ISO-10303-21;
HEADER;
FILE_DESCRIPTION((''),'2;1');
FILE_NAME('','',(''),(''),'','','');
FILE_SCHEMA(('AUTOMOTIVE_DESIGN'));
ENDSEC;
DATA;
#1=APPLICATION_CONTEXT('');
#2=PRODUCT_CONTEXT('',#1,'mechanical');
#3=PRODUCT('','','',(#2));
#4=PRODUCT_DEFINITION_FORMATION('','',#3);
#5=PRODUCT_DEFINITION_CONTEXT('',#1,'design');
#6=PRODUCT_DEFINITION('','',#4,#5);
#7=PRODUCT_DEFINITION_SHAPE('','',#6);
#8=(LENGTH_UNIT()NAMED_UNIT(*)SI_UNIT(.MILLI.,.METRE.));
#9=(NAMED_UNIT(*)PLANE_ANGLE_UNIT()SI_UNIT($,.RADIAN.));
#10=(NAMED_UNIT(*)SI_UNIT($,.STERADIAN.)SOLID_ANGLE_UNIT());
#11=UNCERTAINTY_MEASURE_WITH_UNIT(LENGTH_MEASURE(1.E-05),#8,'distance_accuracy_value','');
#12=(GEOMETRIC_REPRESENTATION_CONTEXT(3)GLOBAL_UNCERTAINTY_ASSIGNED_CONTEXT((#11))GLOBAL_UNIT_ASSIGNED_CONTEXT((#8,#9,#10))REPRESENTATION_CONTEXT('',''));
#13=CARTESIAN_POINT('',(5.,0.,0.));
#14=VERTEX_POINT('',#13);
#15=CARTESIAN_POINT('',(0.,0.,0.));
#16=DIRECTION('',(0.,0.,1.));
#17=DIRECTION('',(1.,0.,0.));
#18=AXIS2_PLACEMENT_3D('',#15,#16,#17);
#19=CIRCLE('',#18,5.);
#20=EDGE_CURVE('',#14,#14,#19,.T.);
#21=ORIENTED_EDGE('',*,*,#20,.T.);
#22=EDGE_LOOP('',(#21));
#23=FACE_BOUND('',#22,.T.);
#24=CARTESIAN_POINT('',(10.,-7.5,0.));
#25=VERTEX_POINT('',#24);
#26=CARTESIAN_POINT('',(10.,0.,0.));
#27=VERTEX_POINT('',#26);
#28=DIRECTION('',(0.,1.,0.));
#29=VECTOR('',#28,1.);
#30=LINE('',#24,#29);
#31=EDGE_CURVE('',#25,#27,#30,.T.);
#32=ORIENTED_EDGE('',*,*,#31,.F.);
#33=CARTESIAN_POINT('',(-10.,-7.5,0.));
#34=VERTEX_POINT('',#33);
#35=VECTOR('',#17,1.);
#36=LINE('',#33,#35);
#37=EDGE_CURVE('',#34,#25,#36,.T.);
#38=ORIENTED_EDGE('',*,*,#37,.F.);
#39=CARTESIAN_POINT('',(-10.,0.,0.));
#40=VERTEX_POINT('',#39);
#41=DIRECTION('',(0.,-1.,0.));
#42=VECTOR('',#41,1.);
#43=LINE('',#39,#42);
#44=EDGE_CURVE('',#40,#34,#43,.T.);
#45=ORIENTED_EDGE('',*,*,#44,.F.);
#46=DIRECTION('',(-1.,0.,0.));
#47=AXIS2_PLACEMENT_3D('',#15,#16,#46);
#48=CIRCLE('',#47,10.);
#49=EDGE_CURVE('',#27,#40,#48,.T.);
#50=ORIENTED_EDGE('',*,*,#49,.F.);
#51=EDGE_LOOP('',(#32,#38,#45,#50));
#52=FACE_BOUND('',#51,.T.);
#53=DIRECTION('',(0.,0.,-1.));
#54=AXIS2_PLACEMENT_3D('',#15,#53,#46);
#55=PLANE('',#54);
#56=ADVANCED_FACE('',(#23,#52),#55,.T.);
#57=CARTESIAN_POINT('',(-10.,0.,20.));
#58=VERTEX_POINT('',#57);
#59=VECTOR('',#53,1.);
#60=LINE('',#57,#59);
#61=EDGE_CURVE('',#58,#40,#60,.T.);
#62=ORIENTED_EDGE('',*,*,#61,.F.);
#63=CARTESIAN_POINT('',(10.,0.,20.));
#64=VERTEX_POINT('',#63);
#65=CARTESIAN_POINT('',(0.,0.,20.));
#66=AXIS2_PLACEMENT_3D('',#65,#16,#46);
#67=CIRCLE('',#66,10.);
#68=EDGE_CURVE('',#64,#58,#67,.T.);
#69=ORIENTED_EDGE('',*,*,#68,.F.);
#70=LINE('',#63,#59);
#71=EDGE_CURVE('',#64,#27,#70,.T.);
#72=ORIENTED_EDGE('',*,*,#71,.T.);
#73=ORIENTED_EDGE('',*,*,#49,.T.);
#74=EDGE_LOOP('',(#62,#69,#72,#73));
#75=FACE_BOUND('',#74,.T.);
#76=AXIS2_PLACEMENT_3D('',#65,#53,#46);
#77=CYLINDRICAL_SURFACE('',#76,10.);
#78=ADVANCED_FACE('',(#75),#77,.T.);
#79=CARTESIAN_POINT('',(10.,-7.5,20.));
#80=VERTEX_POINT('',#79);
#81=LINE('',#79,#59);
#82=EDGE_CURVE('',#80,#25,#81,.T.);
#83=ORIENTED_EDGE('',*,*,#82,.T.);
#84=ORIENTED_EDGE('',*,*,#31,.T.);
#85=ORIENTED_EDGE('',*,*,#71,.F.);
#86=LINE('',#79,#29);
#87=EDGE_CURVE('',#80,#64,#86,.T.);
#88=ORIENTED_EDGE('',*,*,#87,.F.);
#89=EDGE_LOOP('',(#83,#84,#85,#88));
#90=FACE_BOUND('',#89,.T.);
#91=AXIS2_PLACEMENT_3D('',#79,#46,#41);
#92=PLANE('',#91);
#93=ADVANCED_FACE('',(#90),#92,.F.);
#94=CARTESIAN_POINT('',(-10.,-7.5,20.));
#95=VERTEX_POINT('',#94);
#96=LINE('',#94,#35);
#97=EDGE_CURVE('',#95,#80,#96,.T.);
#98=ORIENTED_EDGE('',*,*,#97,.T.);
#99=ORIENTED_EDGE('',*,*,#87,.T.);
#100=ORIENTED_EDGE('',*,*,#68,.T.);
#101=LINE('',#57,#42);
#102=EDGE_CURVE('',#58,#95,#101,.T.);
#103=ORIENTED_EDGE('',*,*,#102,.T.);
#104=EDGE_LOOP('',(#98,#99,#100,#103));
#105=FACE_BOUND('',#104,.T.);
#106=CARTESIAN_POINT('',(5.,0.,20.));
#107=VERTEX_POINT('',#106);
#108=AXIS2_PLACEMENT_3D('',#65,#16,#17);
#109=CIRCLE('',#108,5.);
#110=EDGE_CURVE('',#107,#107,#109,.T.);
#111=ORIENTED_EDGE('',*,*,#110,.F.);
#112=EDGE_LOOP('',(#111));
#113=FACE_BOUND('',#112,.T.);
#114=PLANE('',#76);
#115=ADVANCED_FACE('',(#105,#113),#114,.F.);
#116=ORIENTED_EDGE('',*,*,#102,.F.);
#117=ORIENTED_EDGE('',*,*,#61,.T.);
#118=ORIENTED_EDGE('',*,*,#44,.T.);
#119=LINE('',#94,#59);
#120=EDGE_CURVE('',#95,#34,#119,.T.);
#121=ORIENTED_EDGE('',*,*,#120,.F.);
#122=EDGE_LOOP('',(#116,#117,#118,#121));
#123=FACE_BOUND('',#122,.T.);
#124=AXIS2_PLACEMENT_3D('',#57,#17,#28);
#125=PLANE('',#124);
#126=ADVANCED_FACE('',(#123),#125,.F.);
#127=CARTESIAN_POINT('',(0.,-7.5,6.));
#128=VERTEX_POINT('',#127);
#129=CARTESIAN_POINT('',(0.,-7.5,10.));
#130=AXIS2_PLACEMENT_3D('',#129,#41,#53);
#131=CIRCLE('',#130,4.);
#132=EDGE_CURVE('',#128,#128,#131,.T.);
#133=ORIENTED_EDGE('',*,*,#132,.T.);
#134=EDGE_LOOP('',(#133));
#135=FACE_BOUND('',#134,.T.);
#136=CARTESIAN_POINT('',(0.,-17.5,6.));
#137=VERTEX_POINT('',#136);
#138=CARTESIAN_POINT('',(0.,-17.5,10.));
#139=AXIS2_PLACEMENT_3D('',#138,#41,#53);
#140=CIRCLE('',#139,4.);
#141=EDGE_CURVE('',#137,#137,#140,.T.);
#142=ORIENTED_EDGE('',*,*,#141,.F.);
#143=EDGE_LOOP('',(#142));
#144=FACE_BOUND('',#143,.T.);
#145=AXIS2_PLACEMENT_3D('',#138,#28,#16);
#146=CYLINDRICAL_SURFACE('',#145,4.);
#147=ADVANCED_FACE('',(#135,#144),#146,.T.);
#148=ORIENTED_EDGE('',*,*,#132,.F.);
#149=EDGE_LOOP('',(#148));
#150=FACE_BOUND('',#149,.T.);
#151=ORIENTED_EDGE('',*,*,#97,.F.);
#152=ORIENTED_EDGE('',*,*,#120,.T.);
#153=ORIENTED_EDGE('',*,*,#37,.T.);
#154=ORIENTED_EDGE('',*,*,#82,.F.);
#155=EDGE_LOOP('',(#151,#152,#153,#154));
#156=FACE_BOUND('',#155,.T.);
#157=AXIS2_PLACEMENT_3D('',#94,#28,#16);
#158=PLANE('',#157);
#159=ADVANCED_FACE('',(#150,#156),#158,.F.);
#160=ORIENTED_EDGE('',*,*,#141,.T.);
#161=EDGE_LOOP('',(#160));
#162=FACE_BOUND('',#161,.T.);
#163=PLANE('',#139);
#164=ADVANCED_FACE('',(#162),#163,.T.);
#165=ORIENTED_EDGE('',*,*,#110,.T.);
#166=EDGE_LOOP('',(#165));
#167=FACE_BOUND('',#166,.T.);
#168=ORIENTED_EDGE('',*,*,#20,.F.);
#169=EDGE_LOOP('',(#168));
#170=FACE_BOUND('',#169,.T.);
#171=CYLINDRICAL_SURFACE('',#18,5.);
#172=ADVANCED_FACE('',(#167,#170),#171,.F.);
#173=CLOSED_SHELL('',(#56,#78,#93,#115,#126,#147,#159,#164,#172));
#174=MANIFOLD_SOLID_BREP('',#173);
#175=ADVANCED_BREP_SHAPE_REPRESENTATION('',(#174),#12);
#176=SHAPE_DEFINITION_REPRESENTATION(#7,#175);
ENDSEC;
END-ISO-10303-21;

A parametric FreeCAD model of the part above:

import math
import FreeCAD as App
import Part
import Sketcher

V = App.Vector
Q = App.Units.Quantity

doc = App.newDocument("Part")
body = doc.addObject("PartDesign::Body", "Body")

sketch1 = doc.addObject("Sketcher::SketchObject", "Sketch")
body.addObject(sketch1)
sketch1.AttachmentSupport = (doc.XY_Plane, [""])
sketch1.MapMode = "FlatFace"
sketch1.addGeometry([
    Part.LineSegment(V(-10, 0, 0), V(-10, -8, 0)),
    Part.LineSegment(V(-10, -8, 0), V(10, -8, 0)),
    Part.LineSegment(V(10, -8, 0), V(10, 0, 0)),
    Part.ArcOfCircle(Part.Circle(V(0, 0, 0), V(0, 0, 1), 10), math.radians(0), math.radians(180)),
], False)
sketch1.addConstraint([
    Sketcher.Constraint("Coincident", 0, 2, 1, 1),
    Sketcher.Constraint("Coincident", 1, 2, 2, 1),
    Sketcher.Constraint("Tangent", 2, 2, 3, 1),
    Sketcher.Constraint("Tangent", 3, 2, 0, 1),
    Sketcher.Constraint("Vertical", 0),
    Sketcher.Constraint("Horizontal", 1),
    Sketcher.Constraint("Vertical", 2),
    Sketcher.Constraint("Coincident", 3, 3, -1, 1),
    Sketcher.Constraint("Radius", 3, Q("10 mm")),
    Sketcher.Constraint("DistanceY", 0, 2, 0, 1, Q("7.5 mm")),
])
pad1 = doc.addObject("PartDesign::Pad", "Pad")
body.addObject(pad1)
pad1.Profile = sketch1
pad1.Length = 20

sketch2 = doc.addObject("Sketcher::SketchObject", "Sketch001")
body.addObject(sketch2)
sketch2.AttachmentSupport = (doc.XY_Plane, [""])
sketch2.MapMode = "FlatFace"
sketch2.AttachmentOffset = App.Placement(V(0, 0, 20), App.Rotation())
sketch2.addGeometry(Part.Circle(V(0, 0, 0), V(0, 0, 1), 5), False)
sketch2.addConstraint([
    Sketcher.Constraint("Coincident", 0, 3, -1, 1),
    Sketcher.Constraint("Diameter", 0, Q("10 mm")),
])
pocket1 = doc.addObject("PartDesign::Pocket", "Pocket")
body.addObject(pocket1)
pocket1.Profile = sketch2
pocket1.Type = "ThroughAll"

sketch3 = doc.addObject("Sketcher::SketchObject", "Sketch002")
body.addObject(sketch3)
sketch3.AttachmentSupport = (doc.XZ_Plane, [""])
sketch3.MapMode = "FlatFace"
sketch3.AttachmentOffset = App.Placement(V(0, 0, 7.5), App.Rotation())
sketch3.addGeometry(Part.Circle(V(0, 10, 0), V(0, 0, 1), 4), False)
sketch3.addConstraint([
    Sketcher.Constraint("PointOnObject", 0, 3, -2),
    Sketcher.Constraint("Diameter", 0, Q("8 mm")),
    Sketcher.Constraint("DistanceY", -1, 1, 0, 3, Q("10 mm")),
])
pad2 = doc.addObject("PartDesign::Pad", "Pad001")
body.addObject(pad2)
pad2.Profile = sketch3
pad2.Length = 10

doc.recompute()
